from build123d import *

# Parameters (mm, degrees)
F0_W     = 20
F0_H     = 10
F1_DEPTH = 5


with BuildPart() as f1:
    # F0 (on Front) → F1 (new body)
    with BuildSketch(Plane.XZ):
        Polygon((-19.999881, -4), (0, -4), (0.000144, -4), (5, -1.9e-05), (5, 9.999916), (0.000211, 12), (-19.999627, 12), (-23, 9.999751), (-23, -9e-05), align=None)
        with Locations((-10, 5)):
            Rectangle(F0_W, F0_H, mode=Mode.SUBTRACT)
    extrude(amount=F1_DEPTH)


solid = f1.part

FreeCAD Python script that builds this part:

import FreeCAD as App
import Part
import Sketcher
from FreeCAD import Vector
Q = App.Units.Quantity


def add_polygon(sketch, points):
    """Adds a closed chain of lines whose ends are joined by coincident constraints."""
    first, n = sketch.GeometryCount, len(points)
    for a, b in zip(points, points[1:] + points[:1]):
        sketch.addGeometry(Part.LineSegment(App.Vector(*a, 0), App.Vector(*b, 0)), False)
    for i in range(n):
        sketch.addConstraint(Sketcher.Constraint("Coincident", first + i, 2, first + (i + 1) % n, 1))

doc = App.newDocument("Part")
body = doc.addObject("PartDesign::Body", "Body")

# Sketch on XZ plane
sketch1 = body.newObject("Sketcher::SketchObject", "Sketch")
sketch1.AttachmentSupport = (doc.getObject("XZ_Plane"), [""])
sketch1.MapMode = "FlatFace"
add_polygon(sketch1, [(-19.999881, -4), (0.000144, -4), (5, -0.000019), (5, 9.999916), (0.000211, 12), (-19.999627, 12), (-23, 9.999751), (-23, -0.00009)])  # lines 0-7
add_polygon(sketch1, [(0, 0), (-20, 0), (-20, 10), (0, 10)])  # lines 8-11
sketch1.addConstraint(Sketcher.Constraint("Horizontal", 0))
sketch1.addConstraint(Sketcher.Constraint("Vertical", 2))
sketch1.addConstraint(Sketcher.Constraint("Horizontal", 4))
sketch1.addConstraint(Sketcher.Constraint("Vertical", 6))
sketch1.addConstraint(Sketcher.Constraint("Horizontal", 8))
sketch1.addConstraint(Sketcher.Constraint("Vertical", 9))
sketch1.addConstraint(Sketcher.Constraint("Horizontal", 10))
sketch1.addConstraint(Sketcher.Constraint("Vertical", 11))
sketch1.addConstraint(Sketcher.Constraint("Coincident", 11, 2, -1, 1))
sketch1.addConstraint(Sketcher.Constraint("DistanceX", 8, 2, 8, 1, Q("20 mm")))
sketch1.addConstraint(Sketcher.Constraint("DistanceY", 9, 1, 9, 2, Q("10 mm")))
sketch1.addConstraint(Sketcher.Constraint("Distance", 7, Q("4.999999 mm")))
sketch1.addConstraint(Sketcher.Constraint("DistanceY", 0, 2, -1, 1, Q("4 mm")))
sketch1.addConstraint(Sketcher.Constraint("DistanceX", -1, 1, 1, 2, Q("5 mm")))
sketch1.addConstraint(Sketcher.Constraint("DistanceY", -1, 1, 3, 2, Q("12 mm")))
sketch1.addConstraint(Sketcher.Constraint("DistanceX", 5, 2, -1, 1, Q("23 mm")))
sketch1.addConstraint(Sketcher.Constraint("Distance", 1, Q("6.403 mm")))
sketch1.addConstraint(Sketcher.Constraint("Distance", 3, Q("5.385 mm")))
sketch1.addConstraint(Sketcher.Constraint("Distance", 5, Q("3.606 mm")))
sketch1.addConstraint(Sketcher.Constraint("DistanceX", 4, 2, 4, 1, Q("19.999838 mm")))
sketch1.addConstraint(Sketcher.Constraint("DistanceY", 6, 2, 6, 1, Q("9.999841 mm")))
sketch1.addConstraint(Sketcher.Constraint("DistanceX", 0, 1, 0, 2, Q("20.000025 mm")))
sketch1.addConstraint(Sketcher.Constraint("DistanceX", -1, 1, 3, 2, Q("0.000211 mm")))
pad1 = body.newObject("PartDesign::Pad", "Pad")
pad1.Profile = sketch1
pad1.Length = 5

doc.recompute()
